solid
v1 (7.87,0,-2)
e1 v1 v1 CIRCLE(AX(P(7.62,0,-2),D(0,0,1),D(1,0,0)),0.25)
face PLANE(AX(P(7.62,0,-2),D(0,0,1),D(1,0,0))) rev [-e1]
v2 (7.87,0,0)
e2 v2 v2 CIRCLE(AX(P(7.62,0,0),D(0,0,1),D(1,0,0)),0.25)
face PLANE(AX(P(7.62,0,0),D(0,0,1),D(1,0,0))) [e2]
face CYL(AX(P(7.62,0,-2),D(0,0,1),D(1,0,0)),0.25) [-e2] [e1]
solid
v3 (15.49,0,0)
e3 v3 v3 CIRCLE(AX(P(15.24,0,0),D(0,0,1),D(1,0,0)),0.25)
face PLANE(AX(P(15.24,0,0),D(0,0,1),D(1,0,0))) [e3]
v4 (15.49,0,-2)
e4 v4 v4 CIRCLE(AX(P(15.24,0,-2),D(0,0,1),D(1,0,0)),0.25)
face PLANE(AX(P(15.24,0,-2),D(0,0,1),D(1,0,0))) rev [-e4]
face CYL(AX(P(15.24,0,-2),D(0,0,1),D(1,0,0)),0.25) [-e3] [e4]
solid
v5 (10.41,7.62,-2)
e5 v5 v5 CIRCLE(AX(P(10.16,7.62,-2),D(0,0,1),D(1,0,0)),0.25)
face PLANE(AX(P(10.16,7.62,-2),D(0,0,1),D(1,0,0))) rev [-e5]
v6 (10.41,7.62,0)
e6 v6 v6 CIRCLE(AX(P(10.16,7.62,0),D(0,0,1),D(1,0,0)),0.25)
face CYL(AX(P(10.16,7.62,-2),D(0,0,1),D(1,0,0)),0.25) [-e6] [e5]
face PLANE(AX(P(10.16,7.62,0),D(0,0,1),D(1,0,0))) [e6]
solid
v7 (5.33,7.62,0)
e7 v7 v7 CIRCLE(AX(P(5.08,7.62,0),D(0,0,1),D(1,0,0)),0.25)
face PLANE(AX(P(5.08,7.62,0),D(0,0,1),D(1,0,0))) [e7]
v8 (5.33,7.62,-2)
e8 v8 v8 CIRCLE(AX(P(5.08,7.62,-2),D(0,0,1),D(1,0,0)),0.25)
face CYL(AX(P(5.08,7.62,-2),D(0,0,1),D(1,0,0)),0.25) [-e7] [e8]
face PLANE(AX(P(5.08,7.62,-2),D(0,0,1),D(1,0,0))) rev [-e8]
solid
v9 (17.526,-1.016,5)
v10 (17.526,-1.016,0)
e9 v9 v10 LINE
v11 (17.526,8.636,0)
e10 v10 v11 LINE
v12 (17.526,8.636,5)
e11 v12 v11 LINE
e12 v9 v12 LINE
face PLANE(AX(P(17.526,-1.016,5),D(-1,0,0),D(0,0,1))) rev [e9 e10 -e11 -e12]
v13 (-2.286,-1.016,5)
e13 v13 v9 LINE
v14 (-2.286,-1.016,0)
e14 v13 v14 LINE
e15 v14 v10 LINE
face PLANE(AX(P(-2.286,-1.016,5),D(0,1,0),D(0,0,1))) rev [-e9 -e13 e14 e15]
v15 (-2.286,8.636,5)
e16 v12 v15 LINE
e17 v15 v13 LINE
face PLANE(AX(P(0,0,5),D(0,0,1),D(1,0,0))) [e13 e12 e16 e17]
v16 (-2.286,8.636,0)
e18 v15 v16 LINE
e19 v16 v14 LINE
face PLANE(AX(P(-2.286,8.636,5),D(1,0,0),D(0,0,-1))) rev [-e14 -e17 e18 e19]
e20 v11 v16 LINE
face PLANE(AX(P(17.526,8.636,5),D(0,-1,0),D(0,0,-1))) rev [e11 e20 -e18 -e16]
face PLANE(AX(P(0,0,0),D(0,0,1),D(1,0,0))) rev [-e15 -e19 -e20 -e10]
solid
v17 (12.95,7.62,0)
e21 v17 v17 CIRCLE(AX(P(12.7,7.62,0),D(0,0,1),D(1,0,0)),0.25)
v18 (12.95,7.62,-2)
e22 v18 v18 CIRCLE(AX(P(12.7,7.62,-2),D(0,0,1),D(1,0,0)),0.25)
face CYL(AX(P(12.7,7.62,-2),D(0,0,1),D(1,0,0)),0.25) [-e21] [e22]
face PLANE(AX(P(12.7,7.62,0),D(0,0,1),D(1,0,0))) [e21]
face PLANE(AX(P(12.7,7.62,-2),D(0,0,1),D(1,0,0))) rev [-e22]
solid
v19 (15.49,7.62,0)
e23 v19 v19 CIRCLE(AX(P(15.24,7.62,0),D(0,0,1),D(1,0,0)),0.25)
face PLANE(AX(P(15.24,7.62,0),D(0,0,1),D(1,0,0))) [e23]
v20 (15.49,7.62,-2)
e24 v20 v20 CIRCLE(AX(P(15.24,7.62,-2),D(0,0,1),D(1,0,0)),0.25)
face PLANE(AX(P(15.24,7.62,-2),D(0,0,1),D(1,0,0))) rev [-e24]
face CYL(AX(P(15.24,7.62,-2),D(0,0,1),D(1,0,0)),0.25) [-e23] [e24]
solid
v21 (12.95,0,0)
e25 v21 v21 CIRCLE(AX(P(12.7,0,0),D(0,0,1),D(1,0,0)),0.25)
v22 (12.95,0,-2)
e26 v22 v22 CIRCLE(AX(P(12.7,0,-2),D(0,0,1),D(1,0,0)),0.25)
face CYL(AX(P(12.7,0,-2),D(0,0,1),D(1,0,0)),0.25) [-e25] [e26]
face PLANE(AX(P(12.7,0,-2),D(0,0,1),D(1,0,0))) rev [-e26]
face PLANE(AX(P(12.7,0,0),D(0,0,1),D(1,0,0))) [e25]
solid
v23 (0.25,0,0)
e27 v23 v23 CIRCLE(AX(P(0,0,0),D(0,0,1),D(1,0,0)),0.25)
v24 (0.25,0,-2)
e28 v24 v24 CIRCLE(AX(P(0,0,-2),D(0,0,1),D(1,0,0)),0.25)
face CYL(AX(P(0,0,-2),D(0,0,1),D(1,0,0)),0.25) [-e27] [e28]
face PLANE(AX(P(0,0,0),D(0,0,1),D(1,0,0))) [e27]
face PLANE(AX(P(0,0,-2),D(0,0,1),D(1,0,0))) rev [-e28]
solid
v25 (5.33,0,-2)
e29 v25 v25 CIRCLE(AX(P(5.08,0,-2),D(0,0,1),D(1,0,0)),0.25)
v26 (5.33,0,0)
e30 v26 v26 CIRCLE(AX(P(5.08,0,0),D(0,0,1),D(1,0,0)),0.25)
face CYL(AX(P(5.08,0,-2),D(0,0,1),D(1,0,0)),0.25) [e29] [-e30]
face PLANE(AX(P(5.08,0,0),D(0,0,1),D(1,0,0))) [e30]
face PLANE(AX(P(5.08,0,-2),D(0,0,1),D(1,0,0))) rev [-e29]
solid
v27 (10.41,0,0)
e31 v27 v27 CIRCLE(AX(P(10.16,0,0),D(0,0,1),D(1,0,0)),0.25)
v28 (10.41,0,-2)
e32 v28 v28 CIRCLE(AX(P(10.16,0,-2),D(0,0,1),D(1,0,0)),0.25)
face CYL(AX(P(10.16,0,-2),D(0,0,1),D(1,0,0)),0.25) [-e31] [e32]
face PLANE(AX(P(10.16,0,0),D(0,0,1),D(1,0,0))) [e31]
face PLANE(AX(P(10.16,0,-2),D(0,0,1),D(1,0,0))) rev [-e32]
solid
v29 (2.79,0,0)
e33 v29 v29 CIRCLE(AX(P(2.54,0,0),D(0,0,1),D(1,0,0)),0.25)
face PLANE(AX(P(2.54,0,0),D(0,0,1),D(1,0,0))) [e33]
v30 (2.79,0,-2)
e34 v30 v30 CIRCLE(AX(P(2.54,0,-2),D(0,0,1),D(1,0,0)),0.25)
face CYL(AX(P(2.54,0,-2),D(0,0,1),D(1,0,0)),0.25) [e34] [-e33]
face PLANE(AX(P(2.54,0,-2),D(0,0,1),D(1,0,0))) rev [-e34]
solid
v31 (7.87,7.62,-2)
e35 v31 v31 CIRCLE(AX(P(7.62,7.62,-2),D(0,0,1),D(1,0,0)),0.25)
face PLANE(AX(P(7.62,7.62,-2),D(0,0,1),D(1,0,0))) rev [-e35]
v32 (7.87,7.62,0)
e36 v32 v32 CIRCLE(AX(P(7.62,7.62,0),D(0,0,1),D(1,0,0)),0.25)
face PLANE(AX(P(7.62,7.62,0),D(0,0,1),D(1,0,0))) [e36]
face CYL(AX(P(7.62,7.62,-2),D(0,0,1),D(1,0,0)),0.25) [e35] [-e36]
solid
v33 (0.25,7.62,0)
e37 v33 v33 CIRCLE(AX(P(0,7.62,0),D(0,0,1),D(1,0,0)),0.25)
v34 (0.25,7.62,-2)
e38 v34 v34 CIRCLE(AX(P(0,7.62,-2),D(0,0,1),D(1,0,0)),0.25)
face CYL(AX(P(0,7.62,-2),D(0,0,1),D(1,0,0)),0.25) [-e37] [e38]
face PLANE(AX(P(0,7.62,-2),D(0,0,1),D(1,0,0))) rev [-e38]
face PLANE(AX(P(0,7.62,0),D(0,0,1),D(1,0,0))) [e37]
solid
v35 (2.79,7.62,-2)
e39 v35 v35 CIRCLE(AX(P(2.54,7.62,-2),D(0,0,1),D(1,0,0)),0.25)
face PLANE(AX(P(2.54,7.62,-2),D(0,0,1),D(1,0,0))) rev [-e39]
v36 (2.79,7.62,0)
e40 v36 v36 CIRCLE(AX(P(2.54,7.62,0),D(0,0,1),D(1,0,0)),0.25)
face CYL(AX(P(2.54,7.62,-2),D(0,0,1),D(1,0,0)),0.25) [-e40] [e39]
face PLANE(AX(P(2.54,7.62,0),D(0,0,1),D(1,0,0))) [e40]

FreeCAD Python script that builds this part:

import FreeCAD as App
import Part
import Sketcher


def add_polygon(sketch, points):
    """Adds a closed chain of lines whose ends are joined by coincident constraints."""
    first, n = sketch.GeometryCount, len(points)
    for a, b in zip(points, points[1:] + points[:1]):
        sketch.addGeometry(Part.LineSegment(App.Vector(*a, 0), App.Vector(*b, 0)), False)
    for i in range(n):
        sketch.addConstraint(Sketcher.Constraint("Coincident", first + i, 2, first + (i + 1) % n, 1))

doc = App.newDocument("Part")
body = doc.addObject("PartDesign::Body", "Body")

sketch1 = body.newObject("Sketcher::SketchObject", "Sketch")
sketch1.AttachmentSupport = (doc.getObject("XY_Plane"), [""])
sketch1.MapMode = "FlatFace"
add_polygon(sketch1, [(-2.286, 8.636), (-2.286, -1.016), (17.526, -1.016), (17.526, 8.636)])
sketch1.addConstraint(Sketcher.Constraint("Vertical", 0))
sketch1.addConstraint(Sketcher.Constraint("Horizontal", 1))
sketch1.addConstraint(Sketcher.Constraint("Vertical", 2))
sketch1.addConstraint(Sketcher.Constraint("Horizontal", 3))
sketch1.addConstraint(Sketcher.Constraint("DistanceX", 1, 1, 1, 2, 19.812))
sketch1.addConstraint(Sketcher.Constraint("DistanceY", 0, 2, 0, 1, 9.652))
sketch1.addConstraint(Sketcher.Constraint("DistanceX", 0, 2, -1, 1, 2.286))
sketch1.addConstraint(Sketcher.Constraint("DistanceY", 0, 2, -1, 1, 1.016))
pad1 = body.newObject("PartDesign::Pad", "Pad")
pad1.Profile = sketch1
pad1.Length = 5
body2 = doc.addObject("PartDesign::Body", "Body001")

sketch2 = body2.newObject("Sketcher::SketchObject", "Sketch001")
sketch2.AttachmentSupport = (doc.getObject("XY_Plane001"), [""])
sketch2.MapMode = "FlatFace"
sketch2.addGeometry(Part.Circle(App.Vector(0, 0, 0), App.Vector(0, 0, 1), 0.25), False)
sketch2.addConstraint(Sketcher.Constraint("Coincident", 0, 3, -1, 1))
sketch2.addConstraint(Sketcher.Constraint("Diameter", 0, 0.5))
pad2 = body2.newObject("PartDesign::Pad", "Pad001")
pad2.Profile = sketch2
pad2.Length = 2
pad2.Reversed = True
body3 = doc.addObject("PartDesign::Body", "Body002")

sketch3 = body3.newObject("Sketcher::SketchObject", "Sketch002")
sketch3.AttachmentSupport = (doc.getObject("XY_Plane002"), [""])
sketch3.MapMode = "FlatFace"
sketch3.addGeometry(Part.Circle(App.Vector(2.54, 0, 0), App.Vector(0, 0, 1), 0.25), False)
sketch3.addConstraint(Sketcher.Constraint("PointOnObject", 0, 3, -1))
sketch3.addConstraint(Sketcher.Constraint("Diameter", 0, 0.5))
sketch3.addConstraint(Sketcher.Constraint("DistanceX", -1, 1, 0, 3, 2.54))
pad3 = body3.newObject("PartDesign::Pad", "Pad002")
pad3.Profile = sketch3
pad3.Length = 2
pad3.Reversed = True
body4 = doc.addObject("PartDesign::Body", "Body003")

sketch4 = body4.newObject("Sketcher::SketchObject", "Sketch003")
sketch4.AttachmentSupport = (doc.getObject("XY_Plane003"), [""])
sketch4.MapMode = "FlatFace"
sketch4.addGeometry(Part.Circle(App.Vector(5.08, 0, 0), App.Vector(0, 0, 1), 0.25), False)
sketch4.addConstraint(Sketcher.Constraint("PointOnObject", 0, 3, -1))
sketch4.addConstraint(Sketcher.Constraint("Diameter", 0, 0.5))
sketch4.addConstraint(Sketcher.Constraint("DistanceX", -1, 1, 0, 3, 5.08))
pad4 = body4.newObject("PartDesign::Pad", "Pad003")
pad4.Profile = sketch4
pad4.Length = 2
pad4.Reversed = True
body5 = doc.addObject("PartDesign::Body", "Body004")

sketch5 = body5.newObject("Sketcher::SketchObject", "Sketch004")
sketch5.AttachmentSupport = (doc.getObject("XY_Plane004"), [""])
sketch5.MapMode = "FlatFace"
sketch5.addGeometry(Part.Circle(App.Vector(7.62, 0, 0), App.Vector(0, 0, 1), 0.25), False)
sketch5.addConstraint(Sketcher.Constraint("PointOnObject", 0, 3, -1))
sketch5.addConstraint(Sketcher.Constraint("Diameter", 0, 0.5))
sketch5.addConstraint(Sketcher.Constraint("DistanceX", -1, 1, 0, 3, 7.62))
pad5 = body5.newObject("PartDesign::Pad", "Pad004")
pad5.Profile = sketch5
pad5.Length = 2
pad5.Reversed = True
body6 = doc.addObject("PartDesign::Body", "Body005")

sketch6 = body6.newObject("Sketcher::SketchObject", "Sketch005")
sketch6.AttachmentSupport = (doc.getObject("XY_Plane005"), [""])
sketch6.MapMode = "FlatFace"
sketch6.addGeometry(Part.Circle(App.Vector(10.16, 0, 0), App.Vector(0, 0, 1), 0.25), False)
sketch6.addConstraint(Sketcher.Constraint("PointOnObject", 0, 3, -1))
sketch6.addConstraint(Sketcher.Constraint("Diameter", 0, 0.5))
sketch6.addConstraint(Sketcher.Constraint("DistanceX", -1, 1, 0, 3, 10.16))
pad6 = body6.newObject("PartDesign::Pad", "Pad005")
pad6.Profile = sketch6
pad6.Length = 2
pad6.Reversed = True
body7 = doc.addObject("PartDesign::Body", "Body006")

sketch7 = body7.newObject("Sketcher::SketchObject", "Sketch006")
sketch7.AttachmentSupport = (doc.getObject("XY_Plane006"), [""])
sketch7.MapMode = "FlatFace"
sketch7.addGeometry(Part.Circle(App.Vector(12.7, 0, 0), App.Vector(0, 0, 1), 0.25), False)
sketch7.addConstraint(Sketcher.Constraint("PointOnObject", 0, 3, -1))
sketch7.addConstraint(Sketcher.Constraint("Diameter", 0, 0.5))
sketch7.addConstraint(Sketcher.Constraint("DistanceX", -1, 1, 0, 3, 12.7))
pad7 = body7.newObject("PartDesign::Pad", "Pad006")
pad7.Profile = sketch7
pad7.Length = 2
pad7.Reversed = True
body8 = doc.addObject("PartDesign::Body", "Body007")

sketch8 = body8.newObject("Sketcher::SketchObject", "Sketch007")
sketch8.AttachmentSupport = (doc.getObject("XY_Plane007"), [""])
sketch8.MapMode = "FlatFace"
sketch8.addGeometry(Part.Circle(App.Vector(15.24, 0, 0), App.Vector(0, 0, 1), 0.25), False)
sketch8.addConstraint(Sketcher.Constraint("PointOnObject", 0, 3, -1))
sketch8.addConstraint(Sketcher.Constraint("Diameter", 0, 0.5))
sketch8.addConstraint(Sketcher.Constraint("DistanceX", -1, 1, 0, 3, 15.24))
pad8 = body8.newObject("PartDesign::Pad", "Pad007")
pad8.Profile = sketch8
pad8.Length = 2
pad8.Reversed = True
body9 = doc.addObject("PartDesign::Body", "Body008")

sketch9 = body9.newObject("Sketcher::SketchObject", "Sketch008")
sketch9.AttachmentSupport = (doc.getObject("XY_Plane008"), [""])
sketch9.MapMode = "FlatFace"
sketch9.addGeometry(Part.Circle(App.Vector(15.24, 7.62, 0), App.Vector(0, 0, 1), 0.25), False)
sketch9.addConstraint(Sketcher.Constraint("Diameter", 0, 0.5))
sketch9.addConstraint(Sketcher.Constraint("DistanceX", -1, 1, 0, 3, 15.24))
sketch9.addConstraint(Sketcher.Constraint("DistanceY", -1, 1, 0, 3, 7.62))
pad9 = body9.newObject("PartDesign::Pad", "Pad008")
pad9.Profile = sketch9
pad9.Length = 2
pad9.Reversed = True
body10 = doc.addObject("PartDesign::Body", "Body009")

sketch10 = body10.newObject("Sketcher::SketchObject", "Sketch009")
sketch10.AttachmentSupport = (doc.getObject("XY_Plane009"), [""])
sketch10.MapMode = "FlatFace"
sketch10.addGeometry(Part.Circle(App.Vector(12.7, 7.62, 0), App.Vector(0, 0, 1), 0.25), False)
sketch10.addConstraint(Sketcher.Constraint("Diameter", 0, 0.5))
sketch10.addConstraint(Sketcher.Constraint("DistanceX", -1, 1, 0, 3, 12.7))
sketch10.addConstraint(Sketcher.Constraint("DistanceY", -1, 1, 0, 3, 7.62))
pad10 = body10.newObject("PartDesign::Pad", "Pad009")
pad10.Profile = sketch10
pad10.Length = 2
pad10.Reversed = True
body11 = doc.addObject("PartDesign::Body", "Body010")

sketch11 = body11.newObject("Sketcher::SketchObject", "Sketch010")
sketch11.AttachmentSupport = (doc.getObject("XY_Plane010"), [""])
sketch11.MapMode = "FlatFace"
sketch11.addGeometry(Part.Circle(App.Vector(10.16, 7.62, 0), App.Vector(0, 0, 1), 0.25), False)
sketch11.addConstraint(Sketcher.Constraint("Diameter", 0, 0.5))
sketch11.addConstraint(Sketcher.Constraint("DistanceX", -1, 1, 0, 3, 10.16))
sketch11.addConstraint(Sketcher.Constraint("DistanceY", -1, 1, 0, 3, 7.62))
pad11 = body11.newObject("PartDesign::Pad", "Pad010")
pad11.Profile = sketch11
pad11.Length = 2
pad11.Reversed = True
body12 = doc.addObject("PartDesign::Body", "Body011")

sketch12 = body12.newObject("Sketcher::SketchObject", "Sketch011")
sketch12.AttachmentSupport = (doc.getObject("XY_Plane011"), [""])
sketch12.MapMode = "FlatFace"
sketch12.addGeometry(Part.Circle(App.Vector(7.62, 7.62, 0), App.Vector(0, 0, 1), 0.25), False)
sketch12.addConstraint(Sketcher.Constraint("Diameter", 0, 0.5))
sketch12.addConstraint(Sketcher.Constraint("DistanceX", -1, 1, 0, 3, 7.62))
sketch12.addConstraint(Sketcher.Constraint("DistanceY", -1, 1, 0, 3, 7.62))
pad12 = body12.newObject("PartDesign::Pad", "Pad011")
pad12.Profile = sketch12
pad12.Length = 2
pad12.Reversed = True
body13 = doc.addObject("PartDesign::Body", "Body012")

sketch13 = body13.newObject("Sketcher::SketchObject", "Sketch012")
sketch13.AttachmentSupport = (doc.getObject("XY_Plane012"), [""])
sketch13.MapMode = "FlatFace"
sketch13.addGeometry(Part.Circle(App.Vector(5.08, 7.62, 0), App.Vector(0, 0, 1), 0.25), False)
sketch13.addConstraint(Sketcher.Constraint("Diameter", 0, 0.5))
sketch13.addConstraint(Sketcher.Constraint("DistanceX", -1, 1, 0, 3, 5.08))
sketch13.addConstraint(Sketcher.Constraint("DistanceY", -1, 1, 0, 3, 7.62))
pad13 = body13.newObject("PartDesign::Pad", "Pad012")
pad13.Profile = sketch13
pad13.Length = 2
pad13.Reversed = True
body14 = doc.addObject("PartDesign::Body", "Body013")

sketch14 = body14.newObject("Sketcher::SketchObject", "Sketch013")
sketch14.AttachmentSupport = (doc.getObject("XY_Plane013"), [""])
sketch14.MapMode = "FlatFace"
sketch14.addGeometry(Part.Circle(App.Vector(2.54, 7.62, 0), App.Vector(0, 0, 1), 0.25), False)
sketch14.addConstraint(Sketcher.Constraint("Diameter", 0, 0.5))
sketch14.addConstraint(Sketcher.Constraint("DistanceX", -1, 1, 0, 3, 2.54))
sketch14.addConstraint(Sketcher.Constraint("DistanceY", -1, 1, 0, 3, 7.62))
pad14 = body14.newObject("PartDesign::Pad", "Pad013")
pad14.Profile = sketch14
pad14.Length = 2
pad14.Reversed = True
body15 = doc.addObject("PartDesign::Body", "Body014")

sketch15 = body15.newObject("Sketcher::SketchObject", "Sketch014")
sketch15.AttachmentSupport = (doc.getObject("XY_Plane014"), [""])
sketch15.MapMode = "FlatFace"
sketch15.addGeometry(Part.Circle(App.Vector(0, 7.62, 0), App.Vector(0, 0, 1), 0.25), False)
sketch15.addConstraint(Sketcher.Constraint("PointOnObject", 0, 3, -2))
sketch15.addConstraint(Sketcher.Constraint("Diameter", 0, 0.5))
sketch15.addConstraint(Sketcher.Constraint("DistanceY", -1, 1, 0, 3, 7.62))
pad15 = body15.newObject("PartDesign::Pad", "Pad014")
pad15.Profile = sketch15
pad15.Length = 2
pad15.Reversed = True

doc.recompute()
